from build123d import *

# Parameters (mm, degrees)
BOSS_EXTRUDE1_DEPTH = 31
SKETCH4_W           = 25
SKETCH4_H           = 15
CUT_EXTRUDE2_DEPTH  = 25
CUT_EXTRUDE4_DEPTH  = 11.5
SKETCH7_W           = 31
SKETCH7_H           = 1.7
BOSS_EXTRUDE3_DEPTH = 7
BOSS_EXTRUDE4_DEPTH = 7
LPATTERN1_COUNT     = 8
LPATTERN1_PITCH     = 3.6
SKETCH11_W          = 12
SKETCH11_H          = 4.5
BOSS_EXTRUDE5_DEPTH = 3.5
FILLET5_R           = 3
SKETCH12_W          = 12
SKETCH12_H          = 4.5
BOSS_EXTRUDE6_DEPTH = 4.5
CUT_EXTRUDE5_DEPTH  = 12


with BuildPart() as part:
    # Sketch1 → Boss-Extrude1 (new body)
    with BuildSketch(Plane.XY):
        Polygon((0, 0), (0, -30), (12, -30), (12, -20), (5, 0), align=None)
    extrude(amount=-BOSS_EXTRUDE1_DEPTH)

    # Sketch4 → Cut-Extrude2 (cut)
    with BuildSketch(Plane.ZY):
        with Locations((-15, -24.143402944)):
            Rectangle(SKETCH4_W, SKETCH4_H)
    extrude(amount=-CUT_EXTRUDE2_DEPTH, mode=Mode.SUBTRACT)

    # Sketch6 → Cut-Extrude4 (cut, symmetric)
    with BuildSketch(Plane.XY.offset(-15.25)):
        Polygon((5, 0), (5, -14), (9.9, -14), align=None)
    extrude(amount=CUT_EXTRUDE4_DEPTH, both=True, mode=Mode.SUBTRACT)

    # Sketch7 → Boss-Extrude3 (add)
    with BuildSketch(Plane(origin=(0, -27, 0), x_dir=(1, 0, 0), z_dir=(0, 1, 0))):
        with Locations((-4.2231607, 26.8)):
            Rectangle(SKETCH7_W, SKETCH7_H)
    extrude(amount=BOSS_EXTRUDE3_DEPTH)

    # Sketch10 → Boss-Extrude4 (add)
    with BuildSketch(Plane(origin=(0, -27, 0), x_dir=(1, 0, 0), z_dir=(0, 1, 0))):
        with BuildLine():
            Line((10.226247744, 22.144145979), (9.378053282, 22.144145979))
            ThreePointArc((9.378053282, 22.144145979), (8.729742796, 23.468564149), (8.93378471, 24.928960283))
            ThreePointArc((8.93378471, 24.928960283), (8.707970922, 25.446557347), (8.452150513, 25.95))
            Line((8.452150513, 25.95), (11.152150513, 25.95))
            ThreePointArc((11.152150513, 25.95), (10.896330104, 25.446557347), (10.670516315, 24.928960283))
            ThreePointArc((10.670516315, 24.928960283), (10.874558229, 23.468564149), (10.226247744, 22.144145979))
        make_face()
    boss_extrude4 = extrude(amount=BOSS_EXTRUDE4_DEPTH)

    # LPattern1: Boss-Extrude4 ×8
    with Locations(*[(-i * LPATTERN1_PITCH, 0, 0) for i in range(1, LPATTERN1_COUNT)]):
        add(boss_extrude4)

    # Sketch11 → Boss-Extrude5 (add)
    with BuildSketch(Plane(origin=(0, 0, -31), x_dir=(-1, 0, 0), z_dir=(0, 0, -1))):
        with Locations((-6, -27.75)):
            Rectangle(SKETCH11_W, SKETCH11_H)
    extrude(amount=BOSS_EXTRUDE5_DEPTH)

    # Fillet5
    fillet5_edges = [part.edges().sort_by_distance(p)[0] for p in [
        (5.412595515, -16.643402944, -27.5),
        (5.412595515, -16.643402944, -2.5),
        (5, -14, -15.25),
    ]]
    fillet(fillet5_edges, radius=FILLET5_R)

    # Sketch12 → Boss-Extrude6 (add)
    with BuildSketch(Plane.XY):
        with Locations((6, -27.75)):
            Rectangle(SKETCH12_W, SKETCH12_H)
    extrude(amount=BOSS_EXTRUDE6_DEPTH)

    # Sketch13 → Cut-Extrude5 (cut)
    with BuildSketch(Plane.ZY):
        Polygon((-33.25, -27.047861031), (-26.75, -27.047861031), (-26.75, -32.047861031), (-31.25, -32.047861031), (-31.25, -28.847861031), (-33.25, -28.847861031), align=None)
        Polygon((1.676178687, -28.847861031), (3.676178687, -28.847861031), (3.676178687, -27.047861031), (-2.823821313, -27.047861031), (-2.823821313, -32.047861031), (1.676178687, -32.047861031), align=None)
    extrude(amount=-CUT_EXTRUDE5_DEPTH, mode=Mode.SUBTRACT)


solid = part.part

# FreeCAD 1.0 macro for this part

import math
import FreeCAD as App
import Part
import Sketcher

V = App.Vector


def edges_at(feature, points):
    """Names of the edges that pass closest to the given points."""
    edges = feature.Shape.Edges
    near = lambda p: min(range(len(edges)), key=lambda i: edges[i].distToShape(Part.Vertex(*p))[0])
    return sorted({f"Edge{near(p) + 1}" for p in points})

doc = App.newDocument("Part")
params = doc.addObject("Spreadsheet::Sheet", "Params")
for row, (alias, value) in enumerate([
    ("sketch1_width", "12 mm"),
    ("sketch1_width2", "5 mm"),
    ("sketch1_height", "30 mm"),
    ("sketch1_height2", "10 mm"),
    ("pad1_length", "31 mm"),
    ("sketch2_width", "15 mm"),
    ("sketch2_height", "25 mm"),
    ("pocket1_length", "25 mm"),
    ("sketch3_height", "14 mm"),
    ("sketch3_width", "4.9 mm"),
    ("pocket2_length", "23 mm"),
    ("sketch4_width", "31 mm"),
    ("sketch4_height", "1.7 mm"),
    ("pad2_length", "7 mm"),
    ("sketch5_width", "2.7 mm"),
    ("pad3_length", "7 mm"),
    ("linearpattern_pitch", "3.6 mm"),
    ("sketch6_width", "12 mm"),
    ("sketch6_height", "4.5 mm"),
    ("pad4_length", "3.5 mm"),
    ("fillet_radius", "3 mm"),
    ("sketch7_width", "12 mm"),
    ("sketch7_height", "4.5 mm"),
    ("pad5_length", "4.5 mm"),
    ("sketch8_width", "5 mm"),
    ("sketch8_height", "2 mm"),
    ("sketch8_width2", "1.8 mm"),
    ("sketch8_height2", "6.5 mm"),
    ("pocket3_length", "12 mm"),
], start=1):
    params.set(f"A{row}", alias)
    params.set(f"B{row}", "=" + value)
    params.setAlias(f"B{row}", alias)

body = doc.addObject("PartDesign::Body", "Body")

# Sketch on XY plane
sketch1 = doc.addObject("Sketcher::SketchObject", "Sketch")
body.addObject(sketch1)
sketch1.AttachmentSupport = (doc.XY_Plane, [""])
sketch1.MapMode = "FlatFace"
sketch1.addGeometry(Part.LineSegment(V(0, 0, 0), V(0, -30, 0)), False)
sketch1.addGeometry(Part.LineSegment(V(0, -30, 0), V(12, -30, 0)), False)
sketch1.addGeometry(Part.LineSegment(V(12, -30, 0), V(12, -20, 0)), False)
sketch1.addGeometry(Part.LineSegment(V(12, -20, 0), V(5, 0, 0)), False)
sketch1.addGeometry(Part.LineSegment(V(5, 0, 0), V(0, 0, 0)), False)
sketch1.addConstraint(Sketcher.Constraint("Coincident", 0, 2, 1, 1))
sketch1.addConstraint(Sketcher.Constraint("Coincident", 1, 2, 2, 1))
sketch1.addConstraint(Sketcher.Constraint("Coincident", 2, 2, 3, 1))
sketch1.addConstraint(Sketcher.Constraint("Coincident", 3, 2, 4, 1))
sketch1.addConstraint(Sketcher.Constraint("Coincident", 4, 2, 0, 1))
sketch1.addConstraint(Sketcher.Constraint("Vertical", 0))
sketch1.addConstraint(Sketcher.Constraint("Horizontal", 1))
sketch1.addConstraint(Sketcher.Constraint("Vertical", 2))
sketch1.addConstraint(Sketcher.Constraint("Horizontal", 4))
sketch1.addConstraint(Sketcher.Constraint("Coincident", 4, 2, -1, 1))
sketch1.addConstraint(Sketcher.Constraint("DistanceX", 1, 1, 1, 2, 12.0))
sketch1.addConstraint(Sketcher.Constraint("DistanceX", 4, 2, 4, 1, 5.0))
sketch1.addConstraint(Sketcher.Constraint("DistanceY", 0, 2, 0, 1, 30.0))
sketch1.addConstraint(Sketcher.Constraint("DistanceY", 2, 1, 2, 2, 10.0))
sketch1.setExpression("Constraints[10]", "Params.sketch1_width")
sketch1.setExpression("Constraints[11]", "Params.sketch1_width2")
sketch1.setExpression("Constraints[12]", "Params.sketch1_height")
sketch1.setExpression("Constraints[13]", "Params.sketch1_height2")
pad1 = doc.addObject("PartDesign::Pad", "Pad")
body.addObject(pad1)
pad1.Profile = sketch1
pad1.setExpression("Length", "Params.pad1_length")
pad1.Reversed = True

# Sketch on YZ plane
sketch2 = doc.addObject("Sketcher::SketchObject", "Sketch001")
body.addObject(sketch2)
sketch2.AttachmentSupport = (doc.YZ_Plane, [""])
sketch2.MapMode = "FlatFace"
sketch2.addGeometry(Part.LineSegment(V(-17, -28, 0), V(-32, -28, 0)), False)
sketch2.addGeometry(Part.LineSegment(V(-32, -28, 0), V(-32, -2, 0)), False)
sketch2.addGeometry(Part.LineSegment(V(-32, -2, 0), V(-17, -2, 0)), False)
sketch2.addGeometry(Part.LineSegment(V(-17, -2, 0), V(-17, -28, 0)), False)
sketch2.addConstraint(Sketcher.Constraint("Coincident", 0, 2, 1, 1))
sketch2.addConstraint(Sketcher.Constraint("Coincident", 1, 2, 2, 1))
sketch2.addConstraint(Sketcher.Constraint("Coincident", 2, 2, 3, 1))
sketch2.addConstraint(Sketcher.Constraint("Coincident", 3, 2, 0, 1))
sketch2.addConstraint(Sketcher.Constraint("Horizontal", 0))
sketch2.addConstraint(Sketcher.Constraint("Vertical", 1))
sketch2.addConstraint(Sketcher.Constraint("Horizontal", 2))
sketch2.addConstraint(Sketcher.Constraint("Vertical", 3))
sketch2.addConstraint(Sketcher.Constraint("DistanceX", 0, 2, 0, 1, 15.0))
sketch2.addConstraint(Sketcher.Constraint("DistanceY", 1, 1, 1, 2, 25.0))
sketch2.addConstraint(Sketcher.Constraint("DistanceY", 0, 2, -1, 1, 27.5))
sketch2.addConstraint(Sketcher.Constraint("DistanceX", 0, 2, -1, 1, 31.643403))
sketch2.setExpression("Constraints[8]", "Params.sketch2_width")
sketch2.setExpression("Constraints[9]", "Params.sketch2_height")
pocket1 = doc.addObject("PartDesign::Pocket", "Pocket")
body.addObject(pocket1)
pocket1.Profile = sketch2
pocket1.setExpression("Length", "Params.pocket1_length")
pocket1.Reversed = True

# Sketch on XY plane
sketch3 = doc.addObject("Sketcher::SketchObject", "Sketch002")
body.addObject(sketch3)
sketch3.AttachmentSupport = (doc.XY_Plane, [""])
sketch3.MapMode = "FlatFace"
sketch3.AttachmentOffset = App.Placement(V(0, 0, -15.25), App.Rotation())
sketch3.addGeometry(Part.LineSegment(V(5, 0, 0), V(5, -14, 0)), False)
sketch3.addGeometry(Part.LineSegment(V(5, -14, 0), V(9.9, -14, 0)), False)
sketch3.addGeometry(Part.LineSegment(V(9.9, -14, 0), V(5, 0, 0)), False)
sketch3.addConstraint(Sketcher.Constraint("Coincident", 0, 2, 1, 1))
sketch3.addConstraint(Sketcher.Constraint("Coincident", 1, 2, 2, 1))
sketch3.addConstraint(Sketcher.Constraint("Coincident", 2, 2, 0, 1))
sketch3.addConstraint(Sketcher.Constraint("Vertical", 0))
sketch3.addConstraint(Sketcher.Constraint("Horizontal", 1))
sketch3.addConstraint(Sketcher.Constraint("PointOnObject", 2, 2, -1))
sketch3.addConstraint(Sketcher.Constraint("DistanceY", 0, 2, 0, 1, 14.0))
sketch3.addConstraint(Sketcher.Constraint("DistanceX", 1, 1, 1, 2, 4.9))
sketch3.addConstraint(Sketcher.Constraint("DistanceX", -1, 1, 0, 2, 5.0))
sketch3.setExpression("Constraints[6]", "Params.sketch3_height")
sketch3.setExpression("Constraints[7]", "Params.sketch3_width")
pocket2 = doc.addObject("PartDesign::Pocket", "Pocket001")
body.addObject(pocket2)
pocket2.Profile = sketch3
pocket2.setExpression("Length", "Params.pocket2_length")
pocket2.Midplane = True

# Sketch on XZ plane
sketch4 = doc.addObject("Sketcher::SketchObject", "Sketch003")
body.addObject(sketch4)
sketch4.AttachmentSupport = (doc.XZ_Plane, [""])
sketch4.MapMode = "FlatFace"
sketch4.AttachmentOffset = App.Placement(V(0, 0, 27), App.Rotation())
sketch4.addGeometry(Part.LineSegment(V(-19.7, -27.6, 0), V(-19.7, -25.9, 0)), False)
sketch4.addGeometry(Part.LineSegment(V(-19.7, -25.9, 0), V(11.3, -25.9, 0)), False)
sketch4.addGeometry(Part.LineSegment(V(11.3, -25.9, 0), V(11.3, -27.6, 0)), False)
sketch4.addGeometry(Part.LineSegment(V(11.3, -27.6, 0), V(-19.7, -27.6, 0)), False)
sketch4.addConstraint(Sketcher.Constraint("Coincident", 0, 2, 1, 1))
sketch4.addConstraint(Sketcher.Constraint("Coincident", 1, 2, 2, 1))
sketch4.addConstraint(Sketcher.Constraint("Coincident", 2, 2, 3, 1))
sketch4.addConstraint(Sketcher.Constraint("Coincident", 3, 2, 0, 1))
sketch4.addConstraint(Sketcher.Constraint("Vertical", 0))
sketch4.addConstraint(Sketcher.Constraint("Horizontal", 1))
sketch4.addConstraint(Sketcher.Constraint("Vertical", 2))
sketch4.addConstraint(Sketcher.Constraint("Horizontal", 3))
sketch4.addConstraint(Sketcher.Constraint("DistanceX", 1, 1, 1, 2, 31.0))
sketch4.addConstraint(Sketcher.Constraint("DistanceY", 0, 1, 0, 2, 1.7))
sketch4.addConstraint(Sketcher.Constraint("DistanceY", 0, 2, -1, 1, 25.95))
sketch4.addConstraint(Sketcher.Constraint("DistanceX", 0, 2, -1, 1, 19.723161))
sketch4.setExpression("Constraints[8]", "Params.sketch4_width")
sketch4.setExpression("Constraints[9]", "Params.sketch4_height")
pad2 = doc.addObject("PartDesign::Pad", "Pad001")
body.addObject(pad2)
pad2.Profile = sketch4
pad2.setExpression("Length", "Params.pad2_length")
pad2.Reversed = True

# Sketch on XZ plane
sketch5 = doc.addObject("Sketcher::SketchObject", "Sketch004")
body.addObject(sketch5)
sketch5.AttachmentSupport = (doc.XZ_Plane, [""])
sketch5.MapMode = "FlatFace"
sketch5.AttachmentOffset = App.Placement(V(0, 0, 27), App.Rotation())
sketch5.addGeometry(Part.LineSegment(V(9.4, -22.1, 0), V(10.2, -22.1, 0)), False)
sketch5.addGeometry(Part.ArcOfCircle(Part.Circle(V(8.4, -23.9, 0), V(0, 0, 1), 2.5), math.radians(-25), math.radians(43)), False)
sketch5.addGeometry(Part.ArcOfCircle(Part.Circle(V(19.6, -21.3, 0), V(0, 0, 1), 9.6), math.radians(-158.11), math.radians(-151.38)), False)
sketch5.addGeometry(Part.LineSegment(V(11.2, -25.9, 0), V(8.5, -25.9, 0)), False)
sketch5.addGeometry(Part.ArcOfCircle(Part.Circle(V(0, -21.3, 0), V(0, 0, 1), 9.6), math.radians(-28.62), math.radians(-21.89)), False)
sketch5.addGeometry(Part.ArcOfCircle(Part.Circle(V(11.2, -23.9, 0), V(0, 0, 1), 2.5), math.radians(137), math.radians(205)), False)
sketch5.addConstraint(Sketcher.Constraint("Coincident", 0, 2, 1, 2))
sketch5.addConstraint(Sketcher.Constraint("Coincident", 1, 1, 2, 1))
sketch5.addConstraint(Sketcher.Constraint("Coincident", 2, 2, 3, 1))
sketch5.addConstraint(Sketcher.Constraint("Coincident", 3, 2, 4, 1))
sketch5.addConstraint(Sketcher.Constraint("Coincident", 4, 2, 5, 2))
sketch5.addConstraint(Sketcher.Constraint("Coincident", 5, 1, 0, 1))
sketch5.addConstraint(Sketcher.Constraint("Horizontal", 0))
sketch5.addConstraint(Sketcher.Constraint("Horizontal", 3))
sketch5.addConstraint(Sketcher.Constraint("Equal", 2, 4))
sketch5.addConstraint(Sketcher.Constraint("Equal", 1, 5))
sketch5.addConstraint(Sketcher.Constraint("Horizontal", 2, 3, 4, 3))
sketch5.addConstraint(Sketcher.Constraint("Horizontal", 1, 3, 5, 3))
sketch5.addConstraint(Sketcher.Constraint("Horizontal", 1, 1, 4, 2))
sketch5.addConstraint(Sketcher.Constraint("DistanceX", 3, 2, 3, 1, 2.7))
sketch5.addConstraint(Sketcher.Constraint("Radius", 2, 9.611902))
sketch5.addConstraint(Sketcher.Constraint("DistanceY", 2, 2, -1, 1, 25.95))
sketch5.addConstraint(Sketcher.Constraint("Radius", 1, 2.51919))
sketch5.addConstraint(Sketcher.Constraint("DistanceX", -1, 1, 2, 3, 19.589599))
sketch5.addConstraint(Sketcher.Constraint("DistanceY", 1, 1, 2, 3, 3.583101))
sketch5.addConstraint(Sketcher.Constraint("DistanceX", 0, 1, 0, 2, 0.848194))
sketch5.addConstraint(Sketcher.Constraint("DistanceY", 1, 3, -1, 1, 23.865438))
sketch5.addConstraint(Sketcher.Constraint("DistanceY", 2, 3, -1, 1, 21.345859))
sketch5.setExpression("Constraints[13]", "Params.sketch5_width")
pad3 = doc.addObject("PartDesign::Pad", "Pad002")
body.addObject(pad3)
pad3.Profile = sketch5
pad3.setExpression("Length", "Params.pad3_length")
pad3.Reversed = True
doc.recompute()

linearpattern = doc.addObject("PartDesign::LinearPattern", "LinearPattern")
body.addObject(linearpattern)
linearpattern.Originals = [pad3]
linearpattern.Direction = (doc.X_Axis, [""])
linearpattern.Mode = "offset"
linearpattern.setExpression("Offset", "Params.linearpattern_pitch")
linearpattern.Occurrences = 8
linearpattern.Reversed = True
body.Tip = linearpattern

# Sketch on XY plane
sketch6 = doc.addObject("Sketcher::SketchObject", "Sketch005")
body.addObject(sketch6)
sketch6.AttachmentSupport = (doc.XY_Plane, [""])
sketch6.MapMode = "FlatFace"
sketch6.AttachmentOffset = App.Placement(V(0, 0, -31), App.Rotation())
sketch6.addGeometry(Part.LineSegment(V(12, -25.5, 0), V(12, -30, 0)), False)
sketch6.addGeometry(Part.LineSegment(V(12, -30, 0), V(0, -30, 0)), False)
sketch6.addGeometry(Part.LineSegment(V(0, -30, 0), V(0, -25.5, 0)), False)
sketch6.addGeometry(Part.LineSegment(V(0, -25.5, 0), V(12, -25.5, 0)), False)
sketch6.addConstraint(Sketcher.Constraint("Coincident", 0, 2, 1, 1))
sketch6.addConstraint(Sketcher.Constraint("Coincident", 1, 2, 2, 1))
sketch6.addConstraint(Sketcher.Constraint("Coincident", 2, 2, 3, 1))
sketch6.addConstraint(Sketcher.Constraint("Coincident", 3, 2, 0, 1))
sketch6.addConstraint(Sketcher.Constraint("Vertical", 0))
sketch6.addConstraint(Sketcher.Constraint("Horizontal", 1))
sketch6.addConstraint(Sketcher.Constraint("Vertical", 2))
sketch6.addConstraint(Sketcher.Constraint("Horizontal", 3))
sketch6.addConstraint(Sketcher.Constraint("PointOnObject", 1, 2, -2))
sketch6.addConstraint(Sketcher.Constraint("DistanceX", 1, 2, 1, 1, 12.0))
sketch6.addConstraint(Sketcher.Constraint("DistanceY", 0, 2, 0, 1, 4.5))
sketch6.addConstraint(Sketcher.Constraint("DistanceY", 0, 2, -1, 1, 30.0))
sketch6.setExpression("Constraints[9]", "Params.sketch6_width")
sketch6.setExpression("Constraints[10]", "Params.sketch6_height")
pad4 = doc.addObject("PartDesign::Pad", "Pad003")
body.addObject(pad4)
pad4.Profile = sketch6
pad4.setExpression("Length", "Params.pad4_length")
pad4.Reversed = True
doc.recompute()

fillet = doc.addObject("PartDesign::Fillet", "Fillet")
body.addObject(fillet)
fillet.Base = (pad4, edges_at(pad4, [(5.413, -16.643, -27.5), (5.413, -16.643, -2.5), (5, -14, -15.25)]))
fillet.setExpression("Radius", "Params.fillet_radius")

# Sketch on XY plane
sketch7 = doc.addObject("Sketcher::SketchObject", "Sketch006")
body.addObject(sketch7)
sketch7.AttachmentSupport = (doc.XY_Plane, [""])
sketch7.MapMode = "FlatFace"
sketch7.addGeometry(Part.LineSegment(V(0, -25.5, 0), V(0, -30, 0)), False)
sketch7.addGeometry(Part.LineSegment(V(0, -30, 0), V(12, -30, 0)), False)
sketch7.addGeometry(Part.LineSegment(V(12, -30, 0), V(12, -25.5, 0)), False)
sketch7.addGeometry(Part.LineSegment(V(12, -25.5, 0), V(0, -25.5, 0)), False)
sketch7.addConstraint(Sketcher.Constraint("Coincident", 0, 2, 1, 1))
sketch7.addConstraint(Sketcher.Constraint("Coincident", 1, 2, 2, 1))
sketch7.addConstraint(Sketcher.Constraint("Coincident", 2, 2, 3, 1))
sketch7.addConstraint(Sketcher.Constraint("Coincident", 3, 2, 0, 1))
sketch7.addConstraint(Sketcher.Constraint("Vertical", 0))
sketch7.addConstraint(Sketcher.Constraint("Horizontal", 1))
sketch7.addConstraint(Sketcher.Constraint("Vertical", 2))
sketch7.addConstraint(Sketcher.Constraint("Horizontal", 3))
sketch7.addConstraint(Sketcher.Constraint("PointOnObject", 0, 2, -2))
sketch7.addConstraint(Sketcher.Constraint("DistanceX", 1, 1, 1, 2, 12.0))
sketch7.addConstraint(Sketcher.Constraint("DistanceY", 0, 2, 0, 1, 4.5))
sketch7.addConstraint(Sketcher.Constraint("DistanceY", 0, 2, -1, 1, 30.0))
sketch7.setExpression("Constraints[9]", "Params.sketch7_width")
sketch7.setExpression("Constraints[10]", "Params.sketch7_height")
pad5 = doc.addObject("PartDesign::Pad", "Pad004")
body.addObject(pad5)
pad5.Profile = sketch7
pad5.setExpression("Length", "Params.pad5_length")

# Sketch on YZ plane
sketch8 = doc.addObject("Sketcher::SketchObject", "Sketch007")
body.addObject(sketch8)
sketch8.AttachmentSupport = (doc.YZ_Plane, [""])
sketch8.MapMode = "FlatFace"
sketch8.addGeometry(Part.LineSegment(V(-27, -26.8, 0), V(-27, -33.2, 0)), False)
sketch8.addGeometry(Part.LineSegment(V(-27, -33.2, 0), V(-28.8, -33.2, 0)), False)
sketch8.addGeometry(Part.LineSegment(V(-28.8, -33.2, 0), V(-28.8, -31.2, 0)), False)
sketch8.addGeometry(Part.LineSegment(V(-28.8, -31.2, 0), V(-32, -31.2, 0)), False)
sketch8.addGeometry(Part.LineSegment(V(-32, -31.2, 0), V(-32, -26.8, 0)), False)
sketch8.addGeometry(Part.LineSegment(V(-32, -26.8, 0), V(-27, -26.8, 0)), False)
sketch8.addGeometry(Part.LineSegment(V(-28.8, 1.7, 0), V(-28.8, 3.7, 0)), False)
sketch8.addGeometry(Part.LineSegment(V(-28.8, 3.7, 0), V(-27, 3.7, 0)), False)
sketch8.addGeometry(Part.LineSegment(V(-27, 3.7, 0), V(-27, -2.8, 0)), False)
sketch8.addGeometry(Part.LineSegment(V(-27, -2.8, 0), V(-32, -2.8, 0)), False)
sketch8.addGeometry(Part.LineSegment(V(-32, -2.8, 0), V(-32, 1.7, 0)), False)
sketch8.addGeometry(Part.LineSegment(V(-32, 1.7, 0), V(-28.8, 1.7, 0)), False)
sketch8.addConstraint(Sketcher.Constraint("Coincident", 0, 2, 1, 1))
sketch8.addConstraint(Sketcher.Constraint("Coincident", 1, 2, 2, 1))
sketch8.addConstraint(Sketcher.Constraint("Coincident", 2, 2, 3, 1))
sketch8.addConstraint(Sketcher.Constraint("Coincident", 3, 2, 4, 1))
sketch8.addConstraint(Sketcher.Constraint("Coincident", 4, 2, 5, 1))
sketch8.addConstraint(Sketcher.Constraint("Coincident", 5, 2, 0, 1))
sketch8.addConstraint(Sketcher.Constraint("Coincident", 6, 2, 7, 1))
sketch8.addConstraint(Sketcher.Constraint("Coincident", 7, 2, 8, 1))
sketch8.addConstraint(Sketcher.Constraint("Coincident", 8, 2, 9, 1))
sketch8.addConstraint(Sketcher.Constraint("Coincident", 9, 2, 10, 1))
sketch8.addConstraint(Sketcher.Constraint("Coincident", 10, 2, 11, 1))
sketch8.addConstraint(Sketcher.Constraint("Coincident", 11, 2, 6, 1))
sketch8.addConstraint(Sketcher.Constraint("Vertical", 0))
sketch8.addConstraint(Sketcher.Constraint("Horizontal", 1))
sketch8.addConstraint(Sketcher.Constraint("Vertical", 2))
sketch8.addConstraint(Sketcher.Constraint("Horizontal", 3))
sketch8.addConstraint(Sketcher.Constraint("Vertical", 4))
sketch8.addConstraint(Sketcher.Constraint("Horizontal", 5))
sketch8.addConstraint(Sketcher.Constraint("Vertical", 6))
sketch8.addConstraint(Sketcher.Constraint("Horizontal", 7))
sketch8.addConstraint(Sketcher.Constraint("Vertical", 8))
sketch8.addConstraint(Sketcher.Constraint("Horizontal", 9))
sketch8.addConstraint(Sketcher.Constraint("Vertical", 10))
sketch8.addConstraint(Sketcher.Constraint("Horizontal", 11))
sketch8.addConstraint(Sketcher.Constraint("Vertical", 2, 2, 6, 2))
sketch8.addConstraint(Sketcher.Constraint("Vertical", 5, 2, 7, 2))
sketch8.addConstraint(Sketcher.Constraint("Vertical", 4, 2, 9, 2))
sketch8.addConstraint(Sketcher.Constraint("Equal", 2, 6))
sketch8.addConstraint(Sketcher.Constraint("Equal", 0, 8))
sketch8.addConstraint(Sketcher.Constraint("DistanceX", 5, 1, 5, 2, 5.0))
sketch8.addConstraint(Sketcher.Constraint("DistanceY", 2, 1, 2, 2, 2.0))
sketch8.addConstraint(Sketcher.Constraint("DistanceX", 1, 2, 1, 1, 1.8))
sketch8.addConstraint(Sketcher.Constraint("DistanceY", 0, 2, 0, 1, 6.5))
sketch8.addConstraint(Sketcher.Constraint("DistanceY", 0, 2, -1, 1, 33.25))
sketch8.addConstraint(Sketcher.Constraint("DistanceX", 0, 2, -1, 1, 27.047861))
sketch8.addConstraint(Sketcher.Constraint("DistanceY", -1, 1, 6, 2, 3.676179))
sketch8.setExpression("Constraints[29]", "Params.sketch8_width")
sketch8.setExpression("Constraints[30]", "Params.sketch8_height")
sketch8.setExpression("Constraints[31]", "Params.sketch8_width2")
sketch8.setExpression("Constraints[32]", "Params.sketch8_height2")
pocket3 = doc.addObject("PartDesign::Pocket", "Pocket002")
body.addObject(pocket3)
pocket3.Profile = sketch8
pocket3.setExpression("Length", "Params.pocket3_length")
pocket3.Reversed = True

doc.recompute()
